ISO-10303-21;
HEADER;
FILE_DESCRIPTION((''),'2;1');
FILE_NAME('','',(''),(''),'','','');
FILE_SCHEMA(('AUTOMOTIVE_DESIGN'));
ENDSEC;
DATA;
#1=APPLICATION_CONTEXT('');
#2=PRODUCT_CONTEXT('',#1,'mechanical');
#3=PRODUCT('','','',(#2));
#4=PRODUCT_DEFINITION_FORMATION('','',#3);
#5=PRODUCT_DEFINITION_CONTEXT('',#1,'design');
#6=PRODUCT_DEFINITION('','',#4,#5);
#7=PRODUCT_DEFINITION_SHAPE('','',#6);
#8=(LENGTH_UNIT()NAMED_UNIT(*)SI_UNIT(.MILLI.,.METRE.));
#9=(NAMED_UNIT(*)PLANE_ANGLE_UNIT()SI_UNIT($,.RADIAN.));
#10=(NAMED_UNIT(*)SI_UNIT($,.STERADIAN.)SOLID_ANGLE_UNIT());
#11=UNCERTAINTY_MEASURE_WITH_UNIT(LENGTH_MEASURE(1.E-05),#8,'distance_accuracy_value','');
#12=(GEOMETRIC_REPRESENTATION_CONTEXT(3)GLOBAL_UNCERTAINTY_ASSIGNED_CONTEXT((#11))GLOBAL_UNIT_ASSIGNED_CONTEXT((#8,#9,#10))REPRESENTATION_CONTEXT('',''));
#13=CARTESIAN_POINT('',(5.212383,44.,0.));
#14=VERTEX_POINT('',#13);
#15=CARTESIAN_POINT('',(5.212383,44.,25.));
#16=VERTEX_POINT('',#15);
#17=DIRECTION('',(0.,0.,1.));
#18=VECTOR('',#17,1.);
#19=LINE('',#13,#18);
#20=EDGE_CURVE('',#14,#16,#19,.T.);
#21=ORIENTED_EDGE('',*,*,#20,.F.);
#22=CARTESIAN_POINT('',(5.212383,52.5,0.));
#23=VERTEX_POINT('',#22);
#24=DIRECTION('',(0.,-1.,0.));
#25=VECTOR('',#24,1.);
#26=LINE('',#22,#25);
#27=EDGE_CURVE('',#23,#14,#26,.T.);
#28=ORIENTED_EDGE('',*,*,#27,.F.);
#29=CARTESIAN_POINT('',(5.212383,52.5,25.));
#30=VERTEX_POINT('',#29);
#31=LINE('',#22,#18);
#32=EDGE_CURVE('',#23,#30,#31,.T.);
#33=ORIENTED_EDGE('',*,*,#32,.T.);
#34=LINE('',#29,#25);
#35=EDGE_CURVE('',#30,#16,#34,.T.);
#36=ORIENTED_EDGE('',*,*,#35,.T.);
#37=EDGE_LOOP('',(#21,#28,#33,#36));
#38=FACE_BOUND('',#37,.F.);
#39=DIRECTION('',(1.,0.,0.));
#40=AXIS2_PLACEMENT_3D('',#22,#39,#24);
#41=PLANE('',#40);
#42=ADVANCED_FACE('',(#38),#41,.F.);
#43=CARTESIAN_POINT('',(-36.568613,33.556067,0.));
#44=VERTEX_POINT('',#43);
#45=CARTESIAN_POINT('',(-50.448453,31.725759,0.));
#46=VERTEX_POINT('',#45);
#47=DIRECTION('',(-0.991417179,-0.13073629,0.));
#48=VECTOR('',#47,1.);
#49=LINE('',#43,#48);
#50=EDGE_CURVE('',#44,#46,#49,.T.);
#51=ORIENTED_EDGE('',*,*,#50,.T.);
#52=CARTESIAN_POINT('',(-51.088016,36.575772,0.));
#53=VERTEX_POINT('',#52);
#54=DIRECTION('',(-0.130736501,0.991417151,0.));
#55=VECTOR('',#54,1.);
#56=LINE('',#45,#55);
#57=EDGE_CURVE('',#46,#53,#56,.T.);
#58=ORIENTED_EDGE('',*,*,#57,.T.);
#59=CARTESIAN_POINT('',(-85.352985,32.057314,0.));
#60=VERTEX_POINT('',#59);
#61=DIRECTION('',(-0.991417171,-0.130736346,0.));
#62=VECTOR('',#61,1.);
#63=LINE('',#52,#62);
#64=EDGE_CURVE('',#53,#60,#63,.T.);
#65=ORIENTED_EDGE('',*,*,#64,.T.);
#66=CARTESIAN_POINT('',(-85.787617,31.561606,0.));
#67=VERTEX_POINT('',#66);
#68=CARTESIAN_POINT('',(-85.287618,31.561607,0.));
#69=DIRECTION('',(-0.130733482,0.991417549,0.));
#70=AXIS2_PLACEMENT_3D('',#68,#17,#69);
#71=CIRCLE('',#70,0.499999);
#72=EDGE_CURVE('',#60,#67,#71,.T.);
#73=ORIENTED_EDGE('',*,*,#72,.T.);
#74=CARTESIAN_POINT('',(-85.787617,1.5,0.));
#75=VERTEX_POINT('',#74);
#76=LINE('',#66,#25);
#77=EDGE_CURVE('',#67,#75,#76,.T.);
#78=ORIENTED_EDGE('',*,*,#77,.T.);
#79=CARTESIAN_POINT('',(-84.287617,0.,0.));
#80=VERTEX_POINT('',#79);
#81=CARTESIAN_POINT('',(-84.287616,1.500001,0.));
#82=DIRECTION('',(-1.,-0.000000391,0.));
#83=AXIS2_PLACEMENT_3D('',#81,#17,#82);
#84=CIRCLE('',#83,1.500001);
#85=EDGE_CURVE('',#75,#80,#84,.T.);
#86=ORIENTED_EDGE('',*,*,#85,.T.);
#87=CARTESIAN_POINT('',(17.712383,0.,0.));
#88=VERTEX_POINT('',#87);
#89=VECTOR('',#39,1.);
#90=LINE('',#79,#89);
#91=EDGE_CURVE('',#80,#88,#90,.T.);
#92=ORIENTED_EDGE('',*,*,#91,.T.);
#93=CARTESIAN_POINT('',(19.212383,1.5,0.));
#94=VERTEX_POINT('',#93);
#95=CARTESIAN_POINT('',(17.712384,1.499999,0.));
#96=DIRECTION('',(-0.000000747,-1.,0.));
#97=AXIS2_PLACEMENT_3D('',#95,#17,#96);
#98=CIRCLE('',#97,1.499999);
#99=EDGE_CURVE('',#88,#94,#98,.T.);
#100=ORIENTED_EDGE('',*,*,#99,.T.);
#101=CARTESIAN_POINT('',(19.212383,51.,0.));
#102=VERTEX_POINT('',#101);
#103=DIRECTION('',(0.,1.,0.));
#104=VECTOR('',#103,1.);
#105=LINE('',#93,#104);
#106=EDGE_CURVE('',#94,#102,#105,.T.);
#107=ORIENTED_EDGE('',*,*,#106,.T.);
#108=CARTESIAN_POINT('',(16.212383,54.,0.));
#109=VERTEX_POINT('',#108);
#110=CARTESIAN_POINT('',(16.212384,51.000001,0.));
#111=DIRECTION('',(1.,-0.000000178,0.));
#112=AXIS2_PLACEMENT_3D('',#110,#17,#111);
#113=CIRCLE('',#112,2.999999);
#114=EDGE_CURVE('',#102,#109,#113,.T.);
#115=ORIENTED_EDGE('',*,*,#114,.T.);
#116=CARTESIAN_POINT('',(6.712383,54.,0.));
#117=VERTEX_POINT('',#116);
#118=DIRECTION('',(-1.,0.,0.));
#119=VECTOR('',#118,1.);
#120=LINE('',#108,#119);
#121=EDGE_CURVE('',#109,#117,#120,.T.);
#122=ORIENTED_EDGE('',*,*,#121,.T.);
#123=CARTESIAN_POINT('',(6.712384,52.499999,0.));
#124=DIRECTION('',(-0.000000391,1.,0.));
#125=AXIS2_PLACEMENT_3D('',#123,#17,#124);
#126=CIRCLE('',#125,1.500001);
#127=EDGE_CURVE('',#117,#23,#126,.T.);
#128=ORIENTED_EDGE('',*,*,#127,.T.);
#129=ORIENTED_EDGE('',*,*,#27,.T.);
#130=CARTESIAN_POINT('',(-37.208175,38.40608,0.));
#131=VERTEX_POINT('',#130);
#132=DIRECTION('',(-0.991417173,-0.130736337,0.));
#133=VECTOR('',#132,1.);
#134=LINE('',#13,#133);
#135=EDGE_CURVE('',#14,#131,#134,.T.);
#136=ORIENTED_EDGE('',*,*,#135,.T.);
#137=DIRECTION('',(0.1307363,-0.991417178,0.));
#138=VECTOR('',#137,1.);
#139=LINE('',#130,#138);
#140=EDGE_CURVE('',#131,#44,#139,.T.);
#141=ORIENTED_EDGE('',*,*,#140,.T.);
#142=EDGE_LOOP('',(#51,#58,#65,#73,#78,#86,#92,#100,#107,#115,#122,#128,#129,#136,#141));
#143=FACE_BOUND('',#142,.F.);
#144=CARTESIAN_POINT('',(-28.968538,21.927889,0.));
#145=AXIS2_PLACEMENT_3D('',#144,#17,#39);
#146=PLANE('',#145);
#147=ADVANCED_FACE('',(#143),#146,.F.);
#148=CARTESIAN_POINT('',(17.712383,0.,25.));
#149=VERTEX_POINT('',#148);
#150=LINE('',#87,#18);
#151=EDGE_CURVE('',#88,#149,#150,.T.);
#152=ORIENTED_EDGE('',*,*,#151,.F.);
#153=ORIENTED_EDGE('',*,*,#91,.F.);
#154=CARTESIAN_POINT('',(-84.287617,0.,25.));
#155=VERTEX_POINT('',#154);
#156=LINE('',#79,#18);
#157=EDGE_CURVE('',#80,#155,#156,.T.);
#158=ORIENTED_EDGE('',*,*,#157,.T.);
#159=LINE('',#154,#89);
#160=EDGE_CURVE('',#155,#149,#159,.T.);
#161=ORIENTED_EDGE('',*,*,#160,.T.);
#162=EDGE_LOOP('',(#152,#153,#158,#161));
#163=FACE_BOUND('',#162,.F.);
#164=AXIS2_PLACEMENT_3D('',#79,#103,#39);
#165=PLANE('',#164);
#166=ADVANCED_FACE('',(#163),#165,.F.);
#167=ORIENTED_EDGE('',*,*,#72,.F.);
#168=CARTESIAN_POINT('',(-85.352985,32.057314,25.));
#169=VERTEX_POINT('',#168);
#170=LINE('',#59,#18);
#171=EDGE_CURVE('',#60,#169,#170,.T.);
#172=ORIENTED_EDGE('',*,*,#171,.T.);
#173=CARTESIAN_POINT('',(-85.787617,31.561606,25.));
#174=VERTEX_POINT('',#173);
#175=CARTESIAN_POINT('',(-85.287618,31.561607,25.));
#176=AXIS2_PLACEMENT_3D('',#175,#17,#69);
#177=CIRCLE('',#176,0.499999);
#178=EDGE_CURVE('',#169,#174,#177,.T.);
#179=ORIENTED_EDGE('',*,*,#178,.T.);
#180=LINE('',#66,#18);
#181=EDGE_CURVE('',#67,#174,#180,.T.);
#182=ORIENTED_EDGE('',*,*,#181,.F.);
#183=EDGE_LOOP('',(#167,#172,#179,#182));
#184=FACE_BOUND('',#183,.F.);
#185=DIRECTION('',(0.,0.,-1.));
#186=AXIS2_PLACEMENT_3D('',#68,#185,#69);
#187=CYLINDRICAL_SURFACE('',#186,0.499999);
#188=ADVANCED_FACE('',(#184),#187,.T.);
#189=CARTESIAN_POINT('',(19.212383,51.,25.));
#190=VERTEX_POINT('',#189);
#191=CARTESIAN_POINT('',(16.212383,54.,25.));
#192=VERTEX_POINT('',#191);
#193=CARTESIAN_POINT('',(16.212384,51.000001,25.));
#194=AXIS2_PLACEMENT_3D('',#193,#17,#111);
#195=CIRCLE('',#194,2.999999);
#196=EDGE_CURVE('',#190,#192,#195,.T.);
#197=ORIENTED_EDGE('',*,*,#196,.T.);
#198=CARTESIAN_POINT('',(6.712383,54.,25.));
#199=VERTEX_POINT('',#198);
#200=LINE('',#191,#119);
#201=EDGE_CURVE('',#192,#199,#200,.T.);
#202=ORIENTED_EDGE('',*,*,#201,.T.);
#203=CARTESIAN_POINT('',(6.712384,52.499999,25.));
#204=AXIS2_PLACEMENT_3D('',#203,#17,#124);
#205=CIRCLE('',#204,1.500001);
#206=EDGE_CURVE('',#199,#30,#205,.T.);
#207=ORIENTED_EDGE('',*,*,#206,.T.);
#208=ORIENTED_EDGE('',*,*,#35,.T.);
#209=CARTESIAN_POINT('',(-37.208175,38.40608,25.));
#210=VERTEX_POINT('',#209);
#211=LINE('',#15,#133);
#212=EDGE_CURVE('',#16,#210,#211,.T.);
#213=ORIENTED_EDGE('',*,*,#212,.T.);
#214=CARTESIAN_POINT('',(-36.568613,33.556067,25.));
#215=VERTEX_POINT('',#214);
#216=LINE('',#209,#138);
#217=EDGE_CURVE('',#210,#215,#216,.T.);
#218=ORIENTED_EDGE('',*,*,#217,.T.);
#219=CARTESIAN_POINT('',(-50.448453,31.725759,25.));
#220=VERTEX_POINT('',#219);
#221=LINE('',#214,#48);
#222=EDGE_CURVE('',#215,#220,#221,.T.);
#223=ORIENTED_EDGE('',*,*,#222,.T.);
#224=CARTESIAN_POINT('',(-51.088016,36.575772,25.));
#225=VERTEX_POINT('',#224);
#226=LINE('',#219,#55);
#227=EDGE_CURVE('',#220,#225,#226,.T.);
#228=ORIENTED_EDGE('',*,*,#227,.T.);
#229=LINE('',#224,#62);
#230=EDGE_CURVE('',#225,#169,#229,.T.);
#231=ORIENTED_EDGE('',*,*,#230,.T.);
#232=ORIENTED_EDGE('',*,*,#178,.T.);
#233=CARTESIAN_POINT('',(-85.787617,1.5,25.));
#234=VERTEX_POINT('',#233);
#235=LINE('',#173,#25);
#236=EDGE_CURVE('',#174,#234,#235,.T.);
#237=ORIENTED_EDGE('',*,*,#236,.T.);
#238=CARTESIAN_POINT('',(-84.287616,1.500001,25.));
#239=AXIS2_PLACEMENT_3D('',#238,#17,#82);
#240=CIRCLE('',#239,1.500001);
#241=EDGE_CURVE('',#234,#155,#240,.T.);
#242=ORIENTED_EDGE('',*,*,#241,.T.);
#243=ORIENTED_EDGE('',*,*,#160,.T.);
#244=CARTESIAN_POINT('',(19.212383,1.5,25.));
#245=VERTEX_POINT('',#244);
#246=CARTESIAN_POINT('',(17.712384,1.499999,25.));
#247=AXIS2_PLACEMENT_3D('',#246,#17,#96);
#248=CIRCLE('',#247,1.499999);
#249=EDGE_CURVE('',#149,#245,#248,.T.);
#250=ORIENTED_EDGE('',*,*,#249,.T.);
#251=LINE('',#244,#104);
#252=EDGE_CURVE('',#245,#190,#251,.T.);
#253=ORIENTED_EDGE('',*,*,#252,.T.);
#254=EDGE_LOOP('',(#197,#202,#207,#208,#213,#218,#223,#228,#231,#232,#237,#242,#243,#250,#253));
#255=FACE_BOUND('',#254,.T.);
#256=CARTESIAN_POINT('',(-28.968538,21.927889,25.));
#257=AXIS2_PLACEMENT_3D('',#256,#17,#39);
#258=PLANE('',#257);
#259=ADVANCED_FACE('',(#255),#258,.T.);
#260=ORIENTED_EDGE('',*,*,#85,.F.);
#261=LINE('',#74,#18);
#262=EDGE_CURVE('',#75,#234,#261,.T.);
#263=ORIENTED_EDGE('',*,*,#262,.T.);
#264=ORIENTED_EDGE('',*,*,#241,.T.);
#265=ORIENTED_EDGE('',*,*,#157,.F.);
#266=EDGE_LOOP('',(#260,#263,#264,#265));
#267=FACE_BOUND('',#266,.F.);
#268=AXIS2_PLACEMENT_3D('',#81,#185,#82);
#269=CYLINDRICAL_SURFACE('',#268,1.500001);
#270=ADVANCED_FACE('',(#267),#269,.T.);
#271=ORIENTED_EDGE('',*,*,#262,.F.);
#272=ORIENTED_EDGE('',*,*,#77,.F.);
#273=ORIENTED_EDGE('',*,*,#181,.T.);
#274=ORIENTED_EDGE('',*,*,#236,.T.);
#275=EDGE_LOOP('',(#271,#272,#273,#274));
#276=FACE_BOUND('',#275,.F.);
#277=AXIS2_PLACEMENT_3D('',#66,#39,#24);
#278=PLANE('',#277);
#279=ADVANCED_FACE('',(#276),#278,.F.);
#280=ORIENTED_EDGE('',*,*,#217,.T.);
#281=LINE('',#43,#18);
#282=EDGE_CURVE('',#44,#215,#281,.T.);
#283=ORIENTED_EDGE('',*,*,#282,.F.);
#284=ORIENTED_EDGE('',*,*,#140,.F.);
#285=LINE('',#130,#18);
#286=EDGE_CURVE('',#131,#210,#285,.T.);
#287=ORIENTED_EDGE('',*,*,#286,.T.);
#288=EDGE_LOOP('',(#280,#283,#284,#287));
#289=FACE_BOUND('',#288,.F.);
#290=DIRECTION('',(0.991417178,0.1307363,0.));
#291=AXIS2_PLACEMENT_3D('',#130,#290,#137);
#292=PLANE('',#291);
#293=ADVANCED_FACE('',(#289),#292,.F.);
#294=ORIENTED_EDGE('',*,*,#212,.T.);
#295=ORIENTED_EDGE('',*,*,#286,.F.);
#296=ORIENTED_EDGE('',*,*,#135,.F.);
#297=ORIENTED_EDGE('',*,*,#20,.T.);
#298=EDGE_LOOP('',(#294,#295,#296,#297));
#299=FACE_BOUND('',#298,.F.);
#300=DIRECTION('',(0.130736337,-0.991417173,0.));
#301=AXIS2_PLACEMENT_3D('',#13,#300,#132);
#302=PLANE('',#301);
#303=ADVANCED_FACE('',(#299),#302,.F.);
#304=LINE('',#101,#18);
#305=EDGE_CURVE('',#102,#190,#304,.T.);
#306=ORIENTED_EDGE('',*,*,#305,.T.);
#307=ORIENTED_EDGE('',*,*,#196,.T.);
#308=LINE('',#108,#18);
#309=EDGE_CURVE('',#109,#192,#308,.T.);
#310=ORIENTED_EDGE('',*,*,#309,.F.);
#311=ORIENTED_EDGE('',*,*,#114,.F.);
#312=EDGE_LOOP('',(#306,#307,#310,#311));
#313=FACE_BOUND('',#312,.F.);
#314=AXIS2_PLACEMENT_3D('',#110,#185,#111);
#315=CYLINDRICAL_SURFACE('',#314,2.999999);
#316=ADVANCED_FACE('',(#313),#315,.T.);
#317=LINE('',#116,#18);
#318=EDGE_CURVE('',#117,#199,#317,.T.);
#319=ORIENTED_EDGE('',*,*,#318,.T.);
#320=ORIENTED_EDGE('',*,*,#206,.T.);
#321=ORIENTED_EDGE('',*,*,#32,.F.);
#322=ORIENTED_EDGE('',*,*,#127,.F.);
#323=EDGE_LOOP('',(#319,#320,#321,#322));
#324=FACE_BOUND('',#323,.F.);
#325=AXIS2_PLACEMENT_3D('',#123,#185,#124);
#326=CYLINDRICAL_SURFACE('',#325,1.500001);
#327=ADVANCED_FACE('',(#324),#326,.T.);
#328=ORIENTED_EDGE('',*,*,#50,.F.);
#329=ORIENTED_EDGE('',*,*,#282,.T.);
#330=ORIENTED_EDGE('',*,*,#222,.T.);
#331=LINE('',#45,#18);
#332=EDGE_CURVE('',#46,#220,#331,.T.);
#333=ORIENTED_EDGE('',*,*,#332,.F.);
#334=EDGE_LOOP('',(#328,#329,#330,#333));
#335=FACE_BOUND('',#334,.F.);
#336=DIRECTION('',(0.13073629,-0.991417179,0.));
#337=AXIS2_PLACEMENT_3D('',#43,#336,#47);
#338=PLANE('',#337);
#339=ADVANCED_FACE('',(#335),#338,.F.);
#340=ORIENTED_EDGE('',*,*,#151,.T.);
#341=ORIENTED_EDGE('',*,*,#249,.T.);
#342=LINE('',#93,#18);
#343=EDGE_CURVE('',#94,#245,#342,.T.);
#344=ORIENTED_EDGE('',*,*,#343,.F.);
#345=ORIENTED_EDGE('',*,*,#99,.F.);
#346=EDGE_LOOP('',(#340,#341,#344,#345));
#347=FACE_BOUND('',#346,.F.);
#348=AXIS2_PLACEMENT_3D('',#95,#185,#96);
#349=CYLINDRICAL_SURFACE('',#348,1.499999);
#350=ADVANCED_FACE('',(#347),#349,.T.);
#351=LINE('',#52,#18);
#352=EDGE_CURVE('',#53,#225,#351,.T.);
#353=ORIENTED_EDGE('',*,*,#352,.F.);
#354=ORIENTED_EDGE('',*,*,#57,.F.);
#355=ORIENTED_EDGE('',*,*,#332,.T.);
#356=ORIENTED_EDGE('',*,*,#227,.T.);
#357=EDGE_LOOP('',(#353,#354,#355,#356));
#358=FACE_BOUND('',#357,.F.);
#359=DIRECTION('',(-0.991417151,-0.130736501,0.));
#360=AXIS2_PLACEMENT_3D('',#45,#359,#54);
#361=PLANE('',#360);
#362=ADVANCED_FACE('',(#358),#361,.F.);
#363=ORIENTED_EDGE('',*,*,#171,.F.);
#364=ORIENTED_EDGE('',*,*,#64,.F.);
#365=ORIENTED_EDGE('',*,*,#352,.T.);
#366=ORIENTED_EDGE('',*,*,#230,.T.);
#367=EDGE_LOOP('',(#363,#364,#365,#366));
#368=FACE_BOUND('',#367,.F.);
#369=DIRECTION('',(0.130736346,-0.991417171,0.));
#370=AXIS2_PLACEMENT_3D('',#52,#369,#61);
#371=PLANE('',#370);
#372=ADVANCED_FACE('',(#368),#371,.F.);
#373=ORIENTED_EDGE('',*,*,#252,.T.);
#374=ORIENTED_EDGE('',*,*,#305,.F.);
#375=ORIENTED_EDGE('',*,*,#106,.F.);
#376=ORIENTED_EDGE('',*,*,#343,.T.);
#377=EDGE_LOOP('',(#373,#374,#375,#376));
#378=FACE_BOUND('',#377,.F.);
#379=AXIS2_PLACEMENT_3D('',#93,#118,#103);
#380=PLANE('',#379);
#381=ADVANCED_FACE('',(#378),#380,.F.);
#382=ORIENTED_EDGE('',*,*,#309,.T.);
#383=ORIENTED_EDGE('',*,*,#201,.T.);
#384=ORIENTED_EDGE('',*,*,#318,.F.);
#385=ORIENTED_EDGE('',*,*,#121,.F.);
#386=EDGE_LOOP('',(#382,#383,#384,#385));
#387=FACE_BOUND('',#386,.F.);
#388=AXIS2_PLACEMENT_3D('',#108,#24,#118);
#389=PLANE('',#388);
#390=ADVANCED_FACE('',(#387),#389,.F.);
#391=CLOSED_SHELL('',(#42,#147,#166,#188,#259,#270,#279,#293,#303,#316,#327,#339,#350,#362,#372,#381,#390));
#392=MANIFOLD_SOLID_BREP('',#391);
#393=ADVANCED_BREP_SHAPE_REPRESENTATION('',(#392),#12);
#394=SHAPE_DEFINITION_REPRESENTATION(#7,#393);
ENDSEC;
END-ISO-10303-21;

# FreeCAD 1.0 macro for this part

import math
import FreeCAD as App
import Part
import Sketcher

V = App.Vector
Q = App.Units.Quantity

doc = App.newDocument("Part")
body = doc.addObject("PartDesign::Body", "Body")

sketch1 = body.newObject("Sketcher::SketchObject", "Sketch")
sketch1.AttachmentSupport = (doc.getObject("XY_Plane"), [""])
sketch1.MapMode = "FlatFace"
sketch1.addGeometry([
    Part.ArcOfCircle(Part.Circle(V(-84.287616, 1.500001, 0), V(0, 0, 1), 1.500001), math.radians(-179.999978), math.radians(-90.000022)),
    Part.LineSegment(V(-84.287617, 0, 0), V(17.712383, 0, 0)),
    Part.ArcOfCircle(Part.Circle(V(17.712384, 1.499999, 0), V(0, 0, 1), 1.499999), math.radians(-90.000043), math.radians(0.000043)),
    Part.LineSegment(V(19.212383, 1.5, 0), V(19.212383, 51, 0)),
    Part.ArcOfCircle(Part.Circle(V(16.212384, 51.000001, 0), V(0, 0, 1), 2.999999), math.radians(-0.00001), math.radians(90.00001)),
    Part.LineSegment(V(16.212383, 54, 0), V(6.712383, 54, 0)),
    Part.ArcOfCircle(Part.Circle(V(6.712384, 52.499999, 0), V(0, 0, 1), 1.500001), math.radians(90.000022), math.radians(179.999978)),
    Part.LineSegment(V(5.212383, 52.5, 0), V(5.212383, 44, 0)),
    Part.LineSegment(V(5.212383, 44, 0), V(-37.208175, 38.40608, 0)),
    Part.LineSegment(V(-37.208175, 38.40608, 0), V(-36.568613, 33.556067, 0)),
    Part.LineSegment(V(-36.568613, 33.556067, 0), V(-50.448453, 31.725759, 0)),
    Part.LineSegment(V(-50.448453, 31.725759, 0), V(-51.088016, 36.575772, 0)),
    Part.LineSegment(V(-51.088016, 36.575772, 0), V(-85.352985, 32.057314, 0)),
    Part.ArcOfCircle(Part.Circle(V(-85.287618, 31.561607, 0), V(0, 0, 1), 0.499999), math.radians(97.51198), math.radians(180.000076)),
    Part.LineSegment(V(-85.787617, 31.561606, 0), V(-85.787617, 1.5, 0)),
], False)
sketch1.addConstraint([
    Sketcher.Constraint("Coincident", 0, 2, 1, 1),
    Sketcher.Constraint("Coincident", 1, 2, 2, 1),
    Sketcher.Constraint("Coincident", 2, 2, 3, 1),
    Sketcher.Constraint("Coincident", 3, 2, 4, 1),
    Sketcher.Constraint("Coincident", 4, 2, 5, 1),
    Sketcher.Constraint("Coincident", 5, 2, 6, 1),
    Sketcher.Constraint("Coincident", 6, 2, 7, 1),
    Sketcher.Constraint("Coincident", 7, 2, 8, 1),
    Sketcher.Constraint("Coincident", 8, 2, 9, 1),
    Sketcher.Constraint("Coincident", 9, 2, 10, 1),
    Sketcher.Constraint("Coincident", 10, 2, 11, 1),
    Sketcher.Constraint("Coincident", 11, 2, 12, 1),
    Sketcher.Constraint("Coincident", 12, 2, 13, 1),
    Sketcher.Constraint("Coincident", 13, 2, 14, 1),
    Sketcher.Constraint("Coincident", 14, 2, 0, 1),
    Sketcher.Constraint("Horizontal", 1),
    Sketcher.Constraint("Vertical", 3),
    Sketcher.Constraint("Horizontal", 5),
    Sketcher.Constraint("Vertical", 7),
    Sketcher.Constraint("Vertical", 14),
    Sketcher.Constraint("PointOnObject", 0, 2, -1),
    Sketcher.Constraint("Radius", 4, Q("2.999999 mm")),
    Sketcher.Constraint("Radius", 0, Q("1.500001 mm")),
    Sketcher.Constraint("Radius", 2, Q("1.499999 mm")),
    Sketcher.Constraint("Radius", 6, Q("1.500001 mm")),
    Sketcher.Constraint("Radius", 13, Q("0.499999 mm")),
    Sketcher.Constraint("DistanceX", 1, 1, 1, 2, Q("102 mm")),
    Sketcher.Constraint("Distance", 10, Q("13.999999 mm")),
    Sketcher.Constraint("DistanceX", 5, 2, 5, 1, Q("9.5 mm")),
    Sketcher.Constraint("DistanceY", 3, 1, 3, 2, Q("49.5 mm")),
    Sketcher.Constraint("DistanceY", 7, 2, 7, 1, Q("8.5 mm")),
    Sketcher.Constraint("DistanceY", -1, 1, 4, 3, Q("51.000001 mm")),
    Sketcher.Constraint("DistanceY", -1, 1, 3, 2, Q("51 mm")),
    Sketcher.Constraint("DistanceY", -1, 1, 7, 2, Q("44 mm")),
    Sketcher.Constraint("DistanceX", 0, 3, 2, 3, Q("102.000001 mm")),
    Sketcher.Constraint("DistanceX", 6, 3, 2, 3, Q("11.000001 mm")),
    Sketcher.Constraint("DistanceX", 13, 3, 0, 2, Q("1.000001 mm")),
    Sketcher.Constraint("DistanceX", 4, 2, 3, 2, Q("3 mm")),
    Sketcher.Constraint("DistanceY", -1, 1, 14, 2, Q("1.5 mm")),
    Sketcher.Constraint("Distance", 9, Q("4.892 mm")),
    Sketcher.Constraint("Distance", 11, Q("4.892 mm")),
    Sketcher.Constraint("Distance", 8, Q("42.787798 mm")),
    Sketcher.Constraint("DistanceX", 0, 3, 11, 2, Q("33.1996 mm")),
    Sketcher.Constraint("DistanceY", 14, 2, 14, 1, Q("30.061606 mm")),
    Sketcher.Constraint("DistanceX", 13, 3, -1, 1, Q("85.287618 mm")),
    Sketcher.Constraint("DistanceY", -1, 1, 8, 2, Q("38.40608 mm")),
    Sketcher.Constraint("DistanceY", -1, 1, 10, 2, Q("31.725759 mm")),
    Sketcher.Constraint("DistanceX", 8, 2, 9, 2, Q("0.639562 mm")),
    Sketcher.Constraint("DistanceX", 12, 2, 0, 3, Q("1.065369 mm")),
    Sketcher.Constraint("DistanceY", 12, 2, 11, 2, Q("4.518458 mm")),
])
pad1 = body.newObject("PartDesign::Pad", "Pad")
pad1.Profile = sketch1
pad1.Length = 25

doc.recompute()
